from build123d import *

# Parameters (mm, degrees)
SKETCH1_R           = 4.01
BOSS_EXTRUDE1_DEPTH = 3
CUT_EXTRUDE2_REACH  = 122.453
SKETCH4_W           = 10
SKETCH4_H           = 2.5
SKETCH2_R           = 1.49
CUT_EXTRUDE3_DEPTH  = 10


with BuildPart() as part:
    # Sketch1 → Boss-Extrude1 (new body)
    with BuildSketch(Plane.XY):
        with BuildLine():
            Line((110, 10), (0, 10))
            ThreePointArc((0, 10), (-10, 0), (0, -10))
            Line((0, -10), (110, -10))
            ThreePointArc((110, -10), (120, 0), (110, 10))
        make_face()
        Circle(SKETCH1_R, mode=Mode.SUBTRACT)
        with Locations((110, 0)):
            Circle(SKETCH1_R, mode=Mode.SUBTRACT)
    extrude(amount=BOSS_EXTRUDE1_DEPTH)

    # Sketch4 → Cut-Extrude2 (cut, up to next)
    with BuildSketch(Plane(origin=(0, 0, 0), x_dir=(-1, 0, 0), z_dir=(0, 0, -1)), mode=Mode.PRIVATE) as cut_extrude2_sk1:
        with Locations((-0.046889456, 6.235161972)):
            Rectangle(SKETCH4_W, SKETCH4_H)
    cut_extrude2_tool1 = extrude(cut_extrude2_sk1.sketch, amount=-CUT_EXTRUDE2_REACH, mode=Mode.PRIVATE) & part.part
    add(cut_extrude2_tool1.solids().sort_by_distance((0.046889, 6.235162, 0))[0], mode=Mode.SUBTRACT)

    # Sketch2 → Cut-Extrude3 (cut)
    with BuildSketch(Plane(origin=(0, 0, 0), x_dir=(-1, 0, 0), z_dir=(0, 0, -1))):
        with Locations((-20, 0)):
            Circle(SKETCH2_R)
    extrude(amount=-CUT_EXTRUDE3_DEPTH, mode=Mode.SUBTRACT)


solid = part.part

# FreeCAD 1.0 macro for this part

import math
import FreeCAD as App
import Part
import Sketcher
from FreeCAD import Vector


def add_polygon(sketch, points):
    """Adds a closed chain of lines whose ends are joined by coincident constraints."""
    first, n = sketch.GeometryCount, len(points)
    for a, b in zip(points, points[1:] + points[:1]):
        sketch.addGeometry(Part.LineSegment(App.Vector(*a, 0), App.Vector(*b, 0)), False)
    for i in range(n):
        sketch.addConstraint(Sketcher.Constraint("Coincident", first + i, 2, first + (i + 1) % n, 1))

doc = App.newDocument("Part")
params = doc.addObject("Spreadsheet::Sheet", "Params")
for row, (alias, value) in enumerate([
    ("sketch1_radius", "10 mm"),
    ("sketch1_diameter", "8.02 mm"),
    ("sketch1_width", "110 mm"),
    ("pad1_length", "3 mm"),
    ("sketch2_width", "10 mm"),
    ("sketch2_height", "2.5 mm"),
    ("sketch3_diameter", "2.98 mm"),
    ("pocket2_length", "10 mm"),
], start=1):
    params.set(f"A{row}", alias)
    params.set(f"B{row}", "=" + value)
    params.setAlias(f"B{row}", alias)

body = doc.addObject("PartDesign::Body", "Body")

sketch1 = body.newObject("Sketcher::SketchObject", "Sketch")
sketch1.AttachmentSupport = (doc.getObject("XY_Plane"), [""])
sketch1.MapMode = "FlatFace"
sketch1.addGeometry([
    Part.LineSegment(Vector(110, 10, 0), Vector(0, 10, 0)),
    Part.ArcOfCircle(Part.Circle(Vector(0, 0, 0), Vector(0, 0, 1), 10), math.radians(90), math.radians(270)),
    Part.LineSegment(Vector(0, -10, 0), Vector(110, -10, 0)),
    Part.ArcOfCircle(Part.Circle(Vector(110, 0, 0), Vector(0, 0, 1), 10), math.radians(-90), math.radians(90)),
    Part.Circle(Vector(0, 0, 0), Vector(0, 0, 1), 4),
    Part.Circle(Vector(110, 0, 0), Vector(0, 0, 1), 4),
], False)
sketch1.addConstraint([
    Sketcher.Constraint("Tangent", 0, 2, 1, 1),
    Sketcher.Constraint("Tangent", 1, 2, 2, 1),
    Sketcher.Constraint("Tangent", 2, 2, 3, 1),
    Sketcher.Constraint("Tangent", 3, 2, 0, 1),
    Sketcher.Constraint("Horizontal", 0),
    Sketcher.Constraint("Horizontal", 2),
    Sketcher.Constraint("Coincident", 1, 3, -1, 1),
    Sketcher.Constraint("Coincident", 4, 3, -1, 1),
    Sketcher.Constraint("Coincident", 5, 3, 3, 3),
    Sketcher.Constraint("Equal", 4, 5),
    Sketcher.Constraint("Radius", 1, 10.0),
    Sketcher.Constraint("Diameter", 4, 8.02),
    Sketcher.Constraint("DistanceX", 0, 2, 0, 1, 110.0),
])
sketch1.setExpression("Constraints[10]", "Params.sketch1_radius")
sketch1.setExpression("Constraints[11]", "Params.sketch1_diameter")
sketch1.setExpression("Constraints[12]", "Params.sketch1_width")
pad1 = body.newObject("PartDesign::Pad", "Pad")
pad1.Profile = sketch1
pad1.setExpression("Length", "Params.pad1_length")

sketch2 = body.newObject("Sketcher::SketchObject", "Sketch001")
sketch2.AttachmentSupport = (doc.getObject("XY_Plane"), [""])
sketch2.MapMode = "FlatFace"
add_polygon(sketch2, [(5, 7.5), (5, 5), (-5, 5), (-5, 7.5)])
sketch2.addConstraint([
    Sketcher.Constraint("Vertical", 0),
    Sketcher.Constraint("Horizontal", 1),
    Sketcher.Constraint("Vertical", 2),
    Sketcher.Constraint("Horizontal", 3),
    Sketcher.Constraint("DistanceX", 1, 2, 1, 1, 10.0),
    Sketcher.Constraint("DistanceY", 0, 2, 0, 1, 2.5),
    Sketcher.Constraint("DistanceX", -1, 1, 0, 2, 5.046889),
    Sketcher.Constraint("DistanceY", -1, 1, 0, 2, 4.985162),
])
sketch2.setExpression("Constraints[8]", "Params.sketch2_width")
sketch2.setExpression("Constraints[9]", "Params.sketch2_height")
pocket1 = body.newObject("PartDesign::Pocket", "Pocket")
pocket1.Profile = sketch2
pocket1.Type = "UpToFirst"
pocket1.Reversed = True

sketch3 = body.newObject("Sketcher::SketchObject", "Sketch002")
sketch3.AttachmentSupport = (doc.getObject("XY_Plane"), [""])
sketch3.MapMode = "FlatFace"
sketch3.addGeometry(Part.Circle(Vector(20, 0, 0), Vector(0, 0, 1), 1.5), False)
sketch3.addConstraint([
    Sketcher.Constraint("PointOnObject", 0, 3, -1),
    Sketcher.Constraint("Diameter", 0, 2.98),
    Sketcher.Constraint("DistanceX", -1, 1, 0, 3, 20.0),
])
sketch3.setExpression("Constraints[1]", "Params.sketch3_diameter")
pocket2 = body.newObject("PartDesign::Pocket", "Pocket001")
pocket2.Profile = sketch3
pocket2.setExpression("Length", "Params.pocket2_length")
pocket2.Reversed = True

doc.recompute()
